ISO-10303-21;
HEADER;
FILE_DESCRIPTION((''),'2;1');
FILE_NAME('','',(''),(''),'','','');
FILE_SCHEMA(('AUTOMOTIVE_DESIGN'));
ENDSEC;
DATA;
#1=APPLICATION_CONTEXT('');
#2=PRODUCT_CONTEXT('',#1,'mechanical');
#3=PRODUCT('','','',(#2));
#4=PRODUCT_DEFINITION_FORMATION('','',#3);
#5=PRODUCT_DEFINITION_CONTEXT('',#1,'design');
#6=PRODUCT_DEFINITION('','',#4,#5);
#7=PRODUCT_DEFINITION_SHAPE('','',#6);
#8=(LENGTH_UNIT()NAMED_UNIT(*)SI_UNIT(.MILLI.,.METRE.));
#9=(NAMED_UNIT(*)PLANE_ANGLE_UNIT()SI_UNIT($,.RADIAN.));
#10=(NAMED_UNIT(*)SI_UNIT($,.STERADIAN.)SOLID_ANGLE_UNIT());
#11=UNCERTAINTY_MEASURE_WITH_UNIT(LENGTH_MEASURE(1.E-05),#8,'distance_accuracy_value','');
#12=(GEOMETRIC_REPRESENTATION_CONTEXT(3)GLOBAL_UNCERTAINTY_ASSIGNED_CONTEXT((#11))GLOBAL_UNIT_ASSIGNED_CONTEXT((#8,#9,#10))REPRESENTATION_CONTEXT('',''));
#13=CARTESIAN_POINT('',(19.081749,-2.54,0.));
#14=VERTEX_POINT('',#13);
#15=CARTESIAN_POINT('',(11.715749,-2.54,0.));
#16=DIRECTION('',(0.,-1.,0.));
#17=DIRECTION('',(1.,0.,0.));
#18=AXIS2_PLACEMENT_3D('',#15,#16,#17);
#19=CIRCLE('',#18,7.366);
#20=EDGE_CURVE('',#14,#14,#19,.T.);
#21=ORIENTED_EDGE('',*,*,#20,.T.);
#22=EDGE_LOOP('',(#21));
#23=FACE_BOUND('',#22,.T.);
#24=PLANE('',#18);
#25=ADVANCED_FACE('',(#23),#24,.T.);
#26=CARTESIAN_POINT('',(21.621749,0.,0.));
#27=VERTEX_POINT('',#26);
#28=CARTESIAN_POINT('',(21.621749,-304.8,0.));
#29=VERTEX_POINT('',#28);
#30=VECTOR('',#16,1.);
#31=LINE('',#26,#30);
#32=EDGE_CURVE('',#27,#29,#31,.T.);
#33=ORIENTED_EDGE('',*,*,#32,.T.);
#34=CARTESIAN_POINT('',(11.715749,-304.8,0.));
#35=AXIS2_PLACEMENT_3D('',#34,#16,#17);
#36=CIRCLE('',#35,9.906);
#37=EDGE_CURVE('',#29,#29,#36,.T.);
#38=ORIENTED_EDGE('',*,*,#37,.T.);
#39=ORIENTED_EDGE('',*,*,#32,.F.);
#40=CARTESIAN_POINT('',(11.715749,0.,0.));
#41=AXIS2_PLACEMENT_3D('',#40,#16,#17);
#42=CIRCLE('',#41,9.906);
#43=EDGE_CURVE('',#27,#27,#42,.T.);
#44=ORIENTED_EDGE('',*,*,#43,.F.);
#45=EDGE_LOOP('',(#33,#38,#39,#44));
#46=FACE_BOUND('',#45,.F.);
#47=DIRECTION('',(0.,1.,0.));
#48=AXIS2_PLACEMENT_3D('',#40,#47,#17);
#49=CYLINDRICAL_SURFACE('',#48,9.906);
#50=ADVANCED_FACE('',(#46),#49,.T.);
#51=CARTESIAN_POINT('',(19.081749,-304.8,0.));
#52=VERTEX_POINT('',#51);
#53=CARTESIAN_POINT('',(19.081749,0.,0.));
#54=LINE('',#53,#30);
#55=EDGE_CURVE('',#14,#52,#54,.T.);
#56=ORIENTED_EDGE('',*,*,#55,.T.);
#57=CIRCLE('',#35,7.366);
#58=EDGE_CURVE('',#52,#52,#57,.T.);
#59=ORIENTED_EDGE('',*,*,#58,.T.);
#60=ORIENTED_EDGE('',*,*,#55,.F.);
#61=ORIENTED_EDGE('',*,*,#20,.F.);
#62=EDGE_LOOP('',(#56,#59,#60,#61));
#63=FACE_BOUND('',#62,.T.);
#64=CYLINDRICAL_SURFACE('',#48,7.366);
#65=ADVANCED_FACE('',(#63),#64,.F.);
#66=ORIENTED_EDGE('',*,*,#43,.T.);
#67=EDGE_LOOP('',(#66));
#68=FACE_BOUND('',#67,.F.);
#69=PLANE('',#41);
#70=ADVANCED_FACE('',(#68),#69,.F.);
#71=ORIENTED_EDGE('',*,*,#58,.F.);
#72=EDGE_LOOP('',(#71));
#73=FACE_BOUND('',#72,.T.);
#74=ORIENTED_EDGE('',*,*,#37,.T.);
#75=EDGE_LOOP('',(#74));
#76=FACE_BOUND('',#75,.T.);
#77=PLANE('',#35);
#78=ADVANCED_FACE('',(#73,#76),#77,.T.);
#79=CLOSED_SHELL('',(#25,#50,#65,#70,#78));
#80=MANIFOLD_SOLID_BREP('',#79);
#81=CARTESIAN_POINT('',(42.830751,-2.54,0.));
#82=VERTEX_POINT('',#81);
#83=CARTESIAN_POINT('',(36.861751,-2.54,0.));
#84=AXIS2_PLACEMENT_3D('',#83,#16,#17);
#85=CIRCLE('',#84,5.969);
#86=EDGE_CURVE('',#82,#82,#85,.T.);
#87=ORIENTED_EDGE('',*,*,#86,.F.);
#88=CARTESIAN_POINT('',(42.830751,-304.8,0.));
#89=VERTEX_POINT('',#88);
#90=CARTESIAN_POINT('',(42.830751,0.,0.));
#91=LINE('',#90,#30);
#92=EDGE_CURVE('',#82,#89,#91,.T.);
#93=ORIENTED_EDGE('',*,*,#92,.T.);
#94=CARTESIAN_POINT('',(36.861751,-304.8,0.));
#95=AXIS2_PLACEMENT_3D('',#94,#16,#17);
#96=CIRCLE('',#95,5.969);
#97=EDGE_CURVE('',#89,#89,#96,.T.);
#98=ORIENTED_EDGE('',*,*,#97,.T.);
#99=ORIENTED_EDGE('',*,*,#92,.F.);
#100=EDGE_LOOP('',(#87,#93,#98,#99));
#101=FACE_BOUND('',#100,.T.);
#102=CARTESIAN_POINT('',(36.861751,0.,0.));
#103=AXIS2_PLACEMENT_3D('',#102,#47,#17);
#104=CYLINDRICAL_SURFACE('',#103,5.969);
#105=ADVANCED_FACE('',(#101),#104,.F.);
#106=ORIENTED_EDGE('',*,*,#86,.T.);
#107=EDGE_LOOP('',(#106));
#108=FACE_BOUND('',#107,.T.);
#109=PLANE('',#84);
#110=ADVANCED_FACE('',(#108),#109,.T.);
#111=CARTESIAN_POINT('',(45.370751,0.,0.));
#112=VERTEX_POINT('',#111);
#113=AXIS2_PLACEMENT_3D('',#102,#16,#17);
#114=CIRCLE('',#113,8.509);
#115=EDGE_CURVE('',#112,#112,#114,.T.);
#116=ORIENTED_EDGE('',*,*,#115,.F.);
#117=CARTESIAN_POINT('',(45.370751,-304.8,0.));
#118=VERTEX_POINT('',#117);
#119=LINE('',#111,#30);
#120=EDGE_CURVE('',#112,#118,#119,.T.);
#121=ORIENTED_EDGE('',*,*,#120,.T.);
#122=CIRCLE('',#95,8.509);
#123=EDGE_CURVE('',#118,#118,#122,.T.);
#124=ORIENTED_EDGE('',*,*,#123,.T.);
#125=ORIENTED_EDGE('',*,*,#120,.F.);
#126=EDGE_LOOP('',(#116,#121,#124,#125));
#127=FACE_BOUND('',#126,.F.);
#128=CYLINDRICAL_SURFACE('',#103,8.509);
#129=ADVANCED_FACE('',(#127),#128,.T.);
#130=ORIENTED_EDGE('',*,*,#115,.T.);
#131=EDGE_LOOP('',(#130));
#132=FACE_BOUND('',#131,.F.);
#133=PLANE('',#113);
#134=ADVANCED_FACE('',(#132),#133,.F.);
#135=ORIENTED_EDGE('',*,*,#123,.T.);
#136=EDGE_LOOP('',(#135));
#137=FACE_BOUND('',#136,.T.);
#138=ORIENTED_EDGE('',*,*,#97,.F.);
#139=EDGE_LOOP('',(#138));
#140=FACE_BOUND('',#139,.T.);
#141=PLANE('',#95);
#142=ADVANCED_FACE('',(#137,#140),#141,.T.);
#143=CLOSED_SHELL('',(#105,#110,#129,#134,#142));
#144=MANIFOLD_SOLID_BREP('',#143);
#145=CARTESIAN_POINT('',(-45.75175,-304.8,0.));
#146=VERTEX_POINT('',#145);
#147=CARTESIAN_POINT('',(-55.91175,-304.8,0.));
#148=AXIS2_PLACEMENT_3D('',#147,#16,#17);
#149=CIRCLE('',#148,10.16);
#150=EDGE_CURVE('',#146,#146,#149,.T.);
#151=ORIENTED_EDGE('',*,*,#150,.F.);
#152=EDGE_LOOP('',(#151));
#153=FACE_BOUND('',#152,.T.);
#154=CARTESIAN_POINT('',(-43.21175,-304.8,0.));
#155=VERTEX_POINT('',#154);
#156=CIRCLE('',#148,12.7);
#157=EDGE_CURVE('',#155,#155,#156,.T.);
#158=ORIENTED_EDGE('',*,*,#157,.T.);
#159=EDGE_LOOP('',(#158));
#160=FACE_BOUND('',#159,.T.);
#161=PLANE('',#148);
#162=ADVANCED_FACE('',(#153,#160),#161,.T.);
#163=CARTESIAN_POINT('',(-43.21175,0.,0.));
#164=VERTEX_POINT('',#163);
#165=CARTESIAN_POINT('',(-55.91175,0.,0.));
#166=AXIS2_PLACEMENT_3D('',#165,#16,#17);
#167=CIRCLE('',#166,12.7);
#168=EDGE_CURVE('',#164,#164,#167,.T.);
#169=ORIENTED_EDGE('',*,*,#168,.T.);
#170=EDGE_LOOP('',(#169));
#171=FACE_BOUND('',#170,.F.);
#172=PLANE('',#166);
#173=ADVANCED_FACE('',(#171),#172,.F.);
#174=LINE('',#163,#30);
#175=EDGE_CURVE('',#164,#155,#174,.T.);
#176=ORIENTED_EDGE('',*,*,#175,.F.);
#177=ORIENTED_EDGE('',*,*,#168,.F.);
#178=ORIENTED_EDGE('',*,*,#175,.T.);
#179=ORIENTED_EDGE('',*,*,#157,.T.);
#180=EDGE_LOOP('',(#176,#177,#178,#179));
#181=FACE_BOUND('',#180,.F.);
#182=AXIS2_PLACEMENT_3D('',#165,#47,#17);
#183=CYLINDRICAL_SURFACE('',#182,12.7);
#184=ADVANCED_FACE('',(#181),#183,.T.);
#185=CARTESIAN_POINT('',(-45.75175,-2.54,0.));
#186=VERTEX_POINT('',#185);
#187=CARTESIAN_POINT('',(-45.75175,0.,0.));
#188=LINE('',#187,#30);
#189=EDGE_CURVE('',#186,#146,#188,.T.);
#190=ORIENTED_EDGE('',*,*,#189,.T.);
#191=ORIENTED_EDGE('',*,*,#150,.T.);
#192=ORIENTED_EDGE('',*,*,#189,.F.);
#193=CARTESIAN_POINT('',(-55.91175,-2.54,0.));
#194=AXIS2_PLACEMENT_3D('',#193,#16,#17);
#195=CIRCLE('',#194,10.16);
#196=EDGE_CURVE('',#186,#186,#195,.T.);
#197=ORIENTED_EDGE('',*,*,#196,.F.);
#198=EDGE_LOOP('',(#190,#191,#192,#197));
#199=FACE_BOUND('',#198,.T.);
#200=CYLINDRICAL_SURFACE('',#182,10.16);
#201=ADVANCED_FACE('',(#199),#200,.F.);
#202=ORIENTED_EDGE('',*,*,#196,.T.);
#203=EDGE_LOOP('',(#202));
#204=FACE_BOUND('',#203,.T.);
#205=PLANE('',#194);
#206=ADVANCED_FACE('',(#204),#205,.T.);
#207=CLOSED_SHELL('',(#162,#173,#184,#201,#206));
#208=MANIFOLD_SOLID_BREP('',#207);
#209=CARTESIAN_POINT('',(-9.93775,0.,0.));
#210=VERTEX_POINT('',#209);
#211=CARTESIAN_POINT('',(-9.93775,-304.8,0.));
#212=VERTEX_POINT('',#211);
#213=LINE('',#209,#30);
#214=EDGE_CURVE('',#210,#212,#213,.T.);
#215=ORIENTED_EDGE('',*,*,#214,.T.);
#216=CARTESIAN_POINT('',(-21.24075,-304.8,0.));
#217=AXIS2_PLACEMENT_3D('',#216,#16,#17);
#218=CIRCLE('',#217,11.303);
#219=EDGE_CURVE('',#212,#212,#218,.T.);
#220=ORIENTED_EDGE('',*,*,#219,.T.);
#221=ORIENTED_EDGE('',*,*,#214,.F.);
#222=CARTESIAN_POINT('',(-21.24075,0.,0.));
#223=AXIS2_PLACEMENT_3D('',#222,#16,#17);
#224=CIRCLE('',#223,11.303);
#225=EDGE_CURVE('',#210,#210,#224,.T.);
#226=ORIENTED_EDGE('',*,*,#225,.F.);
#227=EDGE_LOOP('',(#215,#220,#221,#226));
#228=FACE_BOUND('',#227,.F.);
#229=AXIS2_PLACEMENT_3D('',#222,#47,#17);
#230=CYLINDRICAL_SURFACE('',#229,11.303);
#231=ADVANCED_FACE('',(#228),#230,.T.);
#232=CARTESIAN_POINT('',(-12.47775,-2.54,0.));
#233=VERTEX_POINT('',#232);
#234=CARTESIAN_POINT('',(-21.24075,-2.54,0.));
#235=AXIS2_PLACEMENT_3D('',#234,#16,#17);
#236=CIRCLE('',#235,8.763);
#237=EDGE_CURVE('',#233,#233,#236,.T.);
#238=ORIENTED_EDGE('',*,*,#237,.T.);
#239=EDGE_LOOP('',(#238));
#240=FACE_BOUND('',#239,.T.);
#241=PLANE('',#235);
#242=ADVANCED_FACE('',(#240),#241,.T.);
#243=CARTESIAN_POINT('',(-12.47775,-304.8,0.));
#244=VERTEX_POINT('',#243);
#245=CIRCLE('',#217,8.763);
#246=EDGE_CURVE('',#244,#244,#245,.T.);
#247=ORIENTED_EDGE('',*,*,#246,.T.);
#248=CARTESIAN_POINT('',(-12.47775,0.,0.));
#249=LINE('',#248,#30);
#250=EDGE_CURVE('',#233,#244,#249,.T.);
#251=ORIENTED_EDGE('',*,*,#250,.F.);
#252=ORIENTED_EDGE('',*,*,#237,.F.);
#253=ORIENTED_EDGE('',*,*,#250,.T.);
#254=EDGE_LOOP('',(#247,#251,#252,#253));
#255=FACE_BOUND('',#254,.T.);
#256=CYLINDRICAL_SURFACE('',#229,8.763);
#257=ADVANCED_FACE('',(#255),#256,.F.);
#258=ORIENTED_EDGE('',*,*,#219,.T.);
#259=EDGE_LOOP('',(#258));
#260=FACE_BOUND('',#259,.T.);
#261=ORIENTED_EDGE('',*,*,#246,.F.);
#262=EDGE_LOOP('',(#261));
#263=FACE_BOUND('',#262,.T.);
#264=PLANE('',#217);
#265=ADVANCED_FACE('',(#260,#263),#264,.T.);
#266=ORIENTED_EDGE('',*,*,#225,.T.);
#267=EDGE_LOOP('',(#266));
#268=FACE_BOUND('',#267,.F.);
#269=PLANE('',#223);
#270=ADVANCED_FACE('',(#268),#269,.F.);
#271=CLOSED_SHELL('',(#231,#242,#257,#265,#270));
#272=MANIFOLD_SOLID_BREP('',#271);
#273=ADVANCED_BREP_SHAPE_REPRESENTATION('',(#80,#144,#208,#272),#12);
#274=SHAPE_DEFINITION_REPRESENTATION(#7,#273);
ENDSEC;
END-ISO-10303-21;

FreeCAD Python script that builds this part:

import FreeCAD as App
import Part
import Sketcher
from FreeCAD import Vector
Q = App.Units.Quantity

doc = App.newDocument("Part")
body = doc.addObject("PartDesign::Body", "Body")
body.AllowCompound = True

sketch1 = body.newObject("Sketcher::SketchObject", "Sketch")
sketch1.AttachmentSupport = (doc.getObject("XZ_Plane"), [""])
sketch1.MapMode = "FlatFace"
sketch1.addGeometry(Part.Circle(Vector(-56, 0, 0), Vector(0, 0, 1), 13), False)
sketch1.addGeometry(Part.Circle(Vector(-56, 0, 0), Vector(0, 0, 1), 10), False)
sketch1.addGeometry(Part.Circle(Vector(-21, 0, 0), Vector(0, 0, 1), 11), False)
sketch1.addGeometry(Part.Circle(Vector(-21, 0, 0), Vector(0, 0, 1), 9), False)
sketch1.addGeometry(Part.Circle(Vector(12, 0, 0), Vector(0, 0, 1), 10), False)
sketch1.addGeometry(Part.Circle(Vector(12, 0, 0), Vector(0, 0, 1), 7), False)
sketch1.addGeometry(Part.Circle(Vector(37, 0, 0), Vector(0, 0, 1), 9), False)
sketch1.addGeometry(Part.Circle(Vector(37, 0, 0), Vector(0, 0, 1), 6), False)
sketch1.addConstraint(Sketcher.Constraint("Coincident", 1, 3, 0, 3))
sketch1.addConstraint(Sketcher.Constraint("Coincident", 3, 3, 2, 3))
sketch1.addConstraint(Sketcher.Constraint("Coincident", 5, 3, 4, 3))
sketch1.addConstraint(Sketcher.Constraint("Coincident", 7, 3, 6, 3))
sketch1.addConstraint(Sketcher.Constraint("PointOnObject", 0, 3, -1))
sketch1.addConstraint(Sketcher.Constraint("PointOnObject", 2, 3, -1))
sketch1.addConstraint(Sketcher.Constraint("PointOnObject", 4, 3, -1))
sketch1.addConstraint(Sketcher.Constraint("PointOnObject", 6, 3, -1))
sketch1.addConstraint(Sketcher.Constraint("Diameter", 0, Q("1 in")))
sketch1.addConstraint(Sketcher.Constraint("Diameter", 1, Q("0.8 in")))
sketch1.addConstraint(Sketcher.Constraint("Diameter", 2, Q("0.89 in")))
sketch1.addConstraint(Sketcher.Constraint("Diameter", 3, Q("0.69 in")))
sketch1.addConstraint(Sketcher.Constraint("Diameter", 4, Q("0.78 in")))
sketch1.addConstraint(Sketcher.Constraint("Diameter", 5, Q("0.58 in")))
sketch1.addConstraint(Sketcher.Constraint("Diameter", 6, Q("0.67 in")))
sketch1.addConstraint(Sketcher.Constraint("Diameter", 7, Q("0.47 in")))
sketch1.addConstraint(Sketcher.Constraint("DistanceX", 4, 3, 6, 3, Q("0.9900001 in")))
sketch1.addConstraint(Sketcher.Constraint("DistanceX", 0, 3, 2, 3, Q("1.365 in")))
sketch1.addConstraint(Sketcher.Constraint("DistanceX", 2, 3, 4, 3, Q("1.2975 in")))
sketch1.addConstraint(Sketcher.Constraint("DistanceX", 0, 3, -1, 1, Q("55.91175 mm")))
pad1 = body.newObject("PartDesign::Pad", "Pad")
pad1.Profile = sketch1
pad1.Length = Q("12 in")

sketch2 = body.newObject("Sketcher::SketchObject", "Sketch001")
sketch2.AttachmentSupport = (doc.getObject("XZ_Plane"), [""])
sketch2.MapMode = "FlatFace"
sketch2.addGeometry(Part.Circle(Vector(-56, 0, 0), Vector(0, 0, 1), 10), False)
sketch2.addGeometry(Part.Circle(Vector(-21, 0, 0), Vector(0, 0, 1), 9), False)
sketch2.addGeometry(Part.Circle(Vector(12, 0, 0), Vector(0, 0, 1), 7), False)
sketch2.addGeometry(Part.Circle(Vector(37, 0, 0), Vector(0, 0, 1), 6), False)
sketch2.addConstraint(Sketcher.Constraint("PointOnObject", 0, 3, -1))
sketch2.addConstraint(Sketcher.Constraint("PointOnObject", 1, 3, -1))
sketch2.addConstraint(Sketcher.Constraint("PointOnObject", 2, 3, -1))
sketch2.addConstraint(Sketcher.Constraint("PointOnObject", 3, 3, -1))
sketch2.addConstraint(Sketcher.Constraint("Diameter", 0, Q("0.8 in")))
sketch2.addConstraint(Sketcher.Constraint("Diameter", 1, Q("0.69 in")))
sketch2.addConstraint(Sketcher.Constraint("Diameter", 2, Q("0.58 in")))
sketch2.addConstraint(Sketcher.Constraint("Diameter", 3, Q("0.47 in")))
sketch2.addConstraint(Sketcher.Constraint("DistanceX", 2, 3, 3, 3, Q("0.9900001 in")))
sketch2.addConstraint(Sketcher.Constraint("DistanceX", 0, 3, 1, 3, Q("1.365 in")))
sketch2.addConstraint(Sketcher.Constraint("DistanceX", 1, 3, 2, 3, Q("1.2975 in")))
sketch2.addConstraint(Sketcher.Constraint("DistanceX", 0, 3, -1, 1, Q("55.91175 mm")))
pad2 = body.newObject("PartDesign::Pad", "Pad001")
pad2.Profile = sketch2
pad2.Length = Q("0.1 in")

doc.recompute()
